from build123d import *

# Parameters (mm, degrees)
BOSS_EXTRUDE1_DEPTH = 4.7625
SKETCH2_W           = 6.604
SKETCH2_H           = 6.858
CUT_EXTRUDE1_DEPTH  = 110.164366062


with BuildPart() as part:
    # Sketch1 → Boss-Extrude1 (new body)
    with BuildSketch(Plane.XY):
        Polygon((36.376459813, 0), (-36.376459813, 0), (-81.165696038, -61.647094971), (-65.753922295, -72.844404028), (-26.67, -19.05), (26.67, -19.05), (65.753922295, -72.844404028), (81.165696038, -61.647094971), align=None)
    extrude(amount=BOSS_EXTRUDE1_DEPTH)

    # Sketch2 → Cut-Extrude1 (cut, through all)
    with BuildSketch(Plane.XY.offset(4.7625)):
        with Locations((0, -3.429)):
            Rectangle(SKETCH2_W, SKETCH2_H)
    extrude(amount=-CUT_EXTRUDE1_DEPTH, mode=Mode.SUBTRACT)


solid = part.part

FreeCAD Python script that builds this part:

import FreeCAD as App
import Part
import Sketcher

V = App.Vector
Q = App.Units.Quantity

doc = App.newDocument("Part")
params = doc.addObject("Spreadsheet::Sheet", "Params")
for row, (alias, value) in enumerate([
    ("sketch1_length", "3 in"),
    ("sketch1_width", "2.1 in"),
    ("sketch1_length2", "0.75 in"),
    ("pad1_length", "0.1875 in"),
    ("sketch2_width", "0.26 in"),
    ("sketch2_height", "0.27 in"),
], start=1):
    params.set(f"A{row}", alias)
    params.set(f"B{row}", "=" + value)
    params.setAlias(f"B{row}", alias)

body = doc.addObject("PartDesign::Body", "Body")

sketch1 = body.newObject("Sketcher::SketchObject", "Sketch")
sketch1.AttachmentSupport = (doc.getObject("XY_Plane"), [""])
sketch1.MapMode = "FlatFace"
sketch1.addGeometry([
    Part.LineSegment(V(36, 0, 0), V(-36, 0, 0)),
    Part.LineSegment(V(-36, 0, 0), V(-81, -62, 0)),
    Part.LineSegment(V(-81, -62, 0), V(-66, -73, 0)),
    Part.LineSegment(V(-66, -73, 0), V(-27, -19, 0)),
    Part.LineSegment(V(-27, -19, 0), V(27, -19, 0)),
    Part.LineSegment(V(27, -19, 0), V(66, -73, 0)),
    Part.LineSegment(V(66, -73, 0), V(81, -62, 0)),
    Part.LineSegment(V(81, -62, 0), V(36, 0, 0)),
], False)
sketch1.addConstraint([
    Sketcher.Constraint("Coincident", 0, 2, 1, 1),
    Sketcher.Constraint("Coincident", 1, 2, 2, 1),
    Sketcher.Constraint("Coincident", 2, 2, 3, 1),
    Sketcher.Constraint("Coincident", 3, 2, 4, 1),
    Sketcher.Constraint("Coincident", 4, 2, 5, 1),
    Sketcher.Constraint("Coincident", 5, 2, 6, 1),
    Sketcher.Constraint("Coincident", 6, 2, 7, 1),
    Sketcher.Constraint("Coincident", 7, 2, 0, 1),
    Sketcher.Constraint("Horizontal", 0),
    Sketcher.Constraint("Horizontal", 4),
    Sketcher.Constraint("Symmetric", 0, 2, 7, 2, -1, 1),
    Sketcher.Constraint("Symmetric", 2, 2, 5, 2, -2),
    Sketcher.Constraint("Symmetric", 1, 2, 6, 2, -2),
    Sketcher.Constraint("Perpendicular", 1, 2),
    Sketcher.Constraint("Perpendicular", 2, 3),
    Sketcher.Constraint("Perpendicular", 5, 6),
    Sketcher.Constraint("Distance", 1, Q("3 in")),
    Sketcher.Constraint("DistanceX", 4, 1, 4, 2, Q("2.1 in")),
    Sketcher.Constraint("Angle", 1, Q("-126 deg")),
    Sketcher.Constraint("Distance", 2, Q("0.75 in")),
    Sketcher.Constraint("DistanceY", 3, 2, -1, 1, Q("0.75 in")),
])
sketch1.setExpression("Constraints[16]", "Params.sketch1_length")
sketch1.setExpression("Constraints[17]", "Params.sketch1_width")
sketch1.setExpression("Constraints[19]", "Params.sketch1_length2")
pad1 = body.newObject("PartDesign::Pad", "Pad")
pad1.Profile = sketch1
pad1.setExpression("Length", "Params.pad1_length")

sketch2 = body.newObject("Sketcher::SketchObject", "Sketch001")
sketch2.AttachmentSupport = (doc.getObject("XY_Plane"), [""])
sketch2.MapMode = "FlatFace"
sketch2.AttachmentOffset = App.Placement(V(0, 0, 0.1875 * 25.4), App.Rotation())
sketch2.addGeometry([
    Part.LineSegment(V(-3, 0, 0), V(-3, -7, 0)),
    Part.LineSegment(V(-3, -7, 0), V(3, -7, 0)),
    Part.LineSegment(V(3, -7, 0), V(3, 0, 0)),
    Part.LineSegment(V(3, 0, 0), V(-3, 0, 0)),
], False)
sketch2.addConstraint([
    Sketcher.Constraint("Coincident", 0, 2, 1, 1),
    Sketcher.Constraint("Coincident", 1, 2, 2, 1),
    Sketcher.Constraint("Coincident", 2, 2, 3, 1),
    Sketcher.Constraint("Coincident", 3, 2, 0, 1),
    Sketcher.Constraint("Vertical", 0),
    Sketcher.Constraint("Horizontal", 1),
    Sketcher.Constraint("Vertical", 2),
    Sketcher.Constraint("Horizontal", 3),
    Sketcher.Constraint("Symmetric", 2, 2, 3, 2, -1, 1),
    Sketcher.Constraint("DistanceX", 1, 1, 1, 2, Q("0.26 in")),
    Sketcher.Constraint("DistanceY", 0, 2, 0, 1, Q("0.27 in")),
])
sketch2.setExpression("Constraints[9]", "Params.sketch2_width")
sketch2.setExpression("Constraints[10]", "Params.sketch2_height")
pocket1 = body.newObject("PartDesign::Pocket", "Pocket")
pocket1.Profile = sketch2
pocket1.Type = "ThroughAll"

doc.recompute()
